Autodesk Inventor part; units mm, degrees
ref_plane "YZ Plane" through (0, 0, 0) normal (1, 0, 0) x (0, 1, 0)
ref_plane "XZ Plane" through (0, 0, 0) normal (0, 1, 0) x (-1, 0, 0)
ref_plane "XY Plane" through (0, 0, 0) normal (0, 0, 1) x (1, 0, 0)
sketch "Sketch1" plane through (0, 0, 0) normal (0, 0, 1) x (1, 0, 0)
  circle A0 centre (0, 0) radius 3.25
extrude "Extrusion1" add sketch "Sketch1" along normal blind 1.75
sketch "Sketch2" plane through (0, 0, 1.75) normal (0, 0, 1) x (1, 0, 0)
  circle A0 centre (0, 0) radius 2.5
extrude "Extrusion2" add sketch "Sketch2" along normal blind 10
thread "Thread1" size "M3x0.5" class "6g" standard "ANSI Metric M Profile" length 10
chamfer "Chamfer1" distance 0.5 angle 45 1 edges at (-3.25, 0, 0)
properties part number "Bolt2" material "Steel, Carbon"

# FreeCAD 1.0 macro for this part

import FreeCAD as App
import Part
import Sketcher

V = App.Vector
Q = App.Units.Quantity


def edges_at(feature, points):
    """Names of the edges that pass closest to the given points."""
    edges = feature.Shape.Edges
    near = lambda p: min(range(len(edges)), key=lambda i: edges[i].distToShape(Part.Vertex(*p))[0])
    return sorted({f"Edge{near(p) + 1}" for p in points})

doc = App.newDocument("Part")
params = doc.addObject("Spreadsheet::Sheet", "Params")
for row, (alias, value) in enumerate([
    ("sketch1_diameter", "6.5 mm"),
    ("pad1_length", "1.75 mm"),
    ("sketch2_diameter", "5 mm"),
    ("pad2_length", "10 mm"),
    ("chamfer_size", "0.5 mm"),
], start=1):
    params.set(f"A{row}", alias)
    params.set(f"B{row}", "=" + value)
    params.setAlias(f"B{row}", alias)

body = doc.addObject("PartDesign::Body", "Body")

# Sketch on XY plane
sketch1 = body.newObject("Sketcher::SketchObject", "Sketch")
sketch1.AttachmentSupport = (doc.getObject("XY_Plane"), [""])
sketch1.MapMode = "FlatFace"
sketch1.addGeometry(Part.Circle(V(0, 0, 0), V(0, 0, 1), 3.2), False)
sketch1.addConstraint(Sketcher.Constraint("Coincident", 0, 3, -1, 1))
sketch1.addConstraint(Sketcher.Constraint("Diameter", 0, Q("6.5 mm")))
sketch1.setExpression("Constraints[1]", "Params.sketch1_diameter")
pad1 = body.newObject("PartDesign::Pad", "Pad")
pad1.Profile = sketch1
pad1.setExpression("Length", "Params.pad1_length")

# Sketch on XY plane
sketch2 = body.newObject("Sketcher::SketchObject", "Sketch001")
sketch2.AttachmentSupport = (doc.getObject("XY_Plane"), [""])
sketch2.MapMode = "FlatFace"
sketch2.AttachmentOffset = App.Placement(V(0, 0, 1.75), App.Rotation())
sketch2.addGeometry(Part.Circle(V(0, 0, 0), V(0, 0, 1), 2.5), False)
sketch2.addConstraint(Sketcher.Constraint("Coincident", 0, 3, -1, 1))
sketch2.addConstraint(Sketcher.Constraint("Diameter", 0, Q("5 mm")))
sketch2.setExpression("Constraints[1]", "Params.sketch2_diameter")
pad2 = body.newObject("PartDesign::Pad", "Pad001")
pad2.Profile = sketch2
pad2.setExpression("Length", "Params.pad2_length")
doc.recompute()

chamfer = body.newObject("PartDesign::Chamfer", "Chamfer")
chamfer.Base = (pad2, edges_at(pad2, [(-3.25, 0, 0)]))
chamfer.setExpression("Size", "Params.chamfer_size")

doc.recompute()
